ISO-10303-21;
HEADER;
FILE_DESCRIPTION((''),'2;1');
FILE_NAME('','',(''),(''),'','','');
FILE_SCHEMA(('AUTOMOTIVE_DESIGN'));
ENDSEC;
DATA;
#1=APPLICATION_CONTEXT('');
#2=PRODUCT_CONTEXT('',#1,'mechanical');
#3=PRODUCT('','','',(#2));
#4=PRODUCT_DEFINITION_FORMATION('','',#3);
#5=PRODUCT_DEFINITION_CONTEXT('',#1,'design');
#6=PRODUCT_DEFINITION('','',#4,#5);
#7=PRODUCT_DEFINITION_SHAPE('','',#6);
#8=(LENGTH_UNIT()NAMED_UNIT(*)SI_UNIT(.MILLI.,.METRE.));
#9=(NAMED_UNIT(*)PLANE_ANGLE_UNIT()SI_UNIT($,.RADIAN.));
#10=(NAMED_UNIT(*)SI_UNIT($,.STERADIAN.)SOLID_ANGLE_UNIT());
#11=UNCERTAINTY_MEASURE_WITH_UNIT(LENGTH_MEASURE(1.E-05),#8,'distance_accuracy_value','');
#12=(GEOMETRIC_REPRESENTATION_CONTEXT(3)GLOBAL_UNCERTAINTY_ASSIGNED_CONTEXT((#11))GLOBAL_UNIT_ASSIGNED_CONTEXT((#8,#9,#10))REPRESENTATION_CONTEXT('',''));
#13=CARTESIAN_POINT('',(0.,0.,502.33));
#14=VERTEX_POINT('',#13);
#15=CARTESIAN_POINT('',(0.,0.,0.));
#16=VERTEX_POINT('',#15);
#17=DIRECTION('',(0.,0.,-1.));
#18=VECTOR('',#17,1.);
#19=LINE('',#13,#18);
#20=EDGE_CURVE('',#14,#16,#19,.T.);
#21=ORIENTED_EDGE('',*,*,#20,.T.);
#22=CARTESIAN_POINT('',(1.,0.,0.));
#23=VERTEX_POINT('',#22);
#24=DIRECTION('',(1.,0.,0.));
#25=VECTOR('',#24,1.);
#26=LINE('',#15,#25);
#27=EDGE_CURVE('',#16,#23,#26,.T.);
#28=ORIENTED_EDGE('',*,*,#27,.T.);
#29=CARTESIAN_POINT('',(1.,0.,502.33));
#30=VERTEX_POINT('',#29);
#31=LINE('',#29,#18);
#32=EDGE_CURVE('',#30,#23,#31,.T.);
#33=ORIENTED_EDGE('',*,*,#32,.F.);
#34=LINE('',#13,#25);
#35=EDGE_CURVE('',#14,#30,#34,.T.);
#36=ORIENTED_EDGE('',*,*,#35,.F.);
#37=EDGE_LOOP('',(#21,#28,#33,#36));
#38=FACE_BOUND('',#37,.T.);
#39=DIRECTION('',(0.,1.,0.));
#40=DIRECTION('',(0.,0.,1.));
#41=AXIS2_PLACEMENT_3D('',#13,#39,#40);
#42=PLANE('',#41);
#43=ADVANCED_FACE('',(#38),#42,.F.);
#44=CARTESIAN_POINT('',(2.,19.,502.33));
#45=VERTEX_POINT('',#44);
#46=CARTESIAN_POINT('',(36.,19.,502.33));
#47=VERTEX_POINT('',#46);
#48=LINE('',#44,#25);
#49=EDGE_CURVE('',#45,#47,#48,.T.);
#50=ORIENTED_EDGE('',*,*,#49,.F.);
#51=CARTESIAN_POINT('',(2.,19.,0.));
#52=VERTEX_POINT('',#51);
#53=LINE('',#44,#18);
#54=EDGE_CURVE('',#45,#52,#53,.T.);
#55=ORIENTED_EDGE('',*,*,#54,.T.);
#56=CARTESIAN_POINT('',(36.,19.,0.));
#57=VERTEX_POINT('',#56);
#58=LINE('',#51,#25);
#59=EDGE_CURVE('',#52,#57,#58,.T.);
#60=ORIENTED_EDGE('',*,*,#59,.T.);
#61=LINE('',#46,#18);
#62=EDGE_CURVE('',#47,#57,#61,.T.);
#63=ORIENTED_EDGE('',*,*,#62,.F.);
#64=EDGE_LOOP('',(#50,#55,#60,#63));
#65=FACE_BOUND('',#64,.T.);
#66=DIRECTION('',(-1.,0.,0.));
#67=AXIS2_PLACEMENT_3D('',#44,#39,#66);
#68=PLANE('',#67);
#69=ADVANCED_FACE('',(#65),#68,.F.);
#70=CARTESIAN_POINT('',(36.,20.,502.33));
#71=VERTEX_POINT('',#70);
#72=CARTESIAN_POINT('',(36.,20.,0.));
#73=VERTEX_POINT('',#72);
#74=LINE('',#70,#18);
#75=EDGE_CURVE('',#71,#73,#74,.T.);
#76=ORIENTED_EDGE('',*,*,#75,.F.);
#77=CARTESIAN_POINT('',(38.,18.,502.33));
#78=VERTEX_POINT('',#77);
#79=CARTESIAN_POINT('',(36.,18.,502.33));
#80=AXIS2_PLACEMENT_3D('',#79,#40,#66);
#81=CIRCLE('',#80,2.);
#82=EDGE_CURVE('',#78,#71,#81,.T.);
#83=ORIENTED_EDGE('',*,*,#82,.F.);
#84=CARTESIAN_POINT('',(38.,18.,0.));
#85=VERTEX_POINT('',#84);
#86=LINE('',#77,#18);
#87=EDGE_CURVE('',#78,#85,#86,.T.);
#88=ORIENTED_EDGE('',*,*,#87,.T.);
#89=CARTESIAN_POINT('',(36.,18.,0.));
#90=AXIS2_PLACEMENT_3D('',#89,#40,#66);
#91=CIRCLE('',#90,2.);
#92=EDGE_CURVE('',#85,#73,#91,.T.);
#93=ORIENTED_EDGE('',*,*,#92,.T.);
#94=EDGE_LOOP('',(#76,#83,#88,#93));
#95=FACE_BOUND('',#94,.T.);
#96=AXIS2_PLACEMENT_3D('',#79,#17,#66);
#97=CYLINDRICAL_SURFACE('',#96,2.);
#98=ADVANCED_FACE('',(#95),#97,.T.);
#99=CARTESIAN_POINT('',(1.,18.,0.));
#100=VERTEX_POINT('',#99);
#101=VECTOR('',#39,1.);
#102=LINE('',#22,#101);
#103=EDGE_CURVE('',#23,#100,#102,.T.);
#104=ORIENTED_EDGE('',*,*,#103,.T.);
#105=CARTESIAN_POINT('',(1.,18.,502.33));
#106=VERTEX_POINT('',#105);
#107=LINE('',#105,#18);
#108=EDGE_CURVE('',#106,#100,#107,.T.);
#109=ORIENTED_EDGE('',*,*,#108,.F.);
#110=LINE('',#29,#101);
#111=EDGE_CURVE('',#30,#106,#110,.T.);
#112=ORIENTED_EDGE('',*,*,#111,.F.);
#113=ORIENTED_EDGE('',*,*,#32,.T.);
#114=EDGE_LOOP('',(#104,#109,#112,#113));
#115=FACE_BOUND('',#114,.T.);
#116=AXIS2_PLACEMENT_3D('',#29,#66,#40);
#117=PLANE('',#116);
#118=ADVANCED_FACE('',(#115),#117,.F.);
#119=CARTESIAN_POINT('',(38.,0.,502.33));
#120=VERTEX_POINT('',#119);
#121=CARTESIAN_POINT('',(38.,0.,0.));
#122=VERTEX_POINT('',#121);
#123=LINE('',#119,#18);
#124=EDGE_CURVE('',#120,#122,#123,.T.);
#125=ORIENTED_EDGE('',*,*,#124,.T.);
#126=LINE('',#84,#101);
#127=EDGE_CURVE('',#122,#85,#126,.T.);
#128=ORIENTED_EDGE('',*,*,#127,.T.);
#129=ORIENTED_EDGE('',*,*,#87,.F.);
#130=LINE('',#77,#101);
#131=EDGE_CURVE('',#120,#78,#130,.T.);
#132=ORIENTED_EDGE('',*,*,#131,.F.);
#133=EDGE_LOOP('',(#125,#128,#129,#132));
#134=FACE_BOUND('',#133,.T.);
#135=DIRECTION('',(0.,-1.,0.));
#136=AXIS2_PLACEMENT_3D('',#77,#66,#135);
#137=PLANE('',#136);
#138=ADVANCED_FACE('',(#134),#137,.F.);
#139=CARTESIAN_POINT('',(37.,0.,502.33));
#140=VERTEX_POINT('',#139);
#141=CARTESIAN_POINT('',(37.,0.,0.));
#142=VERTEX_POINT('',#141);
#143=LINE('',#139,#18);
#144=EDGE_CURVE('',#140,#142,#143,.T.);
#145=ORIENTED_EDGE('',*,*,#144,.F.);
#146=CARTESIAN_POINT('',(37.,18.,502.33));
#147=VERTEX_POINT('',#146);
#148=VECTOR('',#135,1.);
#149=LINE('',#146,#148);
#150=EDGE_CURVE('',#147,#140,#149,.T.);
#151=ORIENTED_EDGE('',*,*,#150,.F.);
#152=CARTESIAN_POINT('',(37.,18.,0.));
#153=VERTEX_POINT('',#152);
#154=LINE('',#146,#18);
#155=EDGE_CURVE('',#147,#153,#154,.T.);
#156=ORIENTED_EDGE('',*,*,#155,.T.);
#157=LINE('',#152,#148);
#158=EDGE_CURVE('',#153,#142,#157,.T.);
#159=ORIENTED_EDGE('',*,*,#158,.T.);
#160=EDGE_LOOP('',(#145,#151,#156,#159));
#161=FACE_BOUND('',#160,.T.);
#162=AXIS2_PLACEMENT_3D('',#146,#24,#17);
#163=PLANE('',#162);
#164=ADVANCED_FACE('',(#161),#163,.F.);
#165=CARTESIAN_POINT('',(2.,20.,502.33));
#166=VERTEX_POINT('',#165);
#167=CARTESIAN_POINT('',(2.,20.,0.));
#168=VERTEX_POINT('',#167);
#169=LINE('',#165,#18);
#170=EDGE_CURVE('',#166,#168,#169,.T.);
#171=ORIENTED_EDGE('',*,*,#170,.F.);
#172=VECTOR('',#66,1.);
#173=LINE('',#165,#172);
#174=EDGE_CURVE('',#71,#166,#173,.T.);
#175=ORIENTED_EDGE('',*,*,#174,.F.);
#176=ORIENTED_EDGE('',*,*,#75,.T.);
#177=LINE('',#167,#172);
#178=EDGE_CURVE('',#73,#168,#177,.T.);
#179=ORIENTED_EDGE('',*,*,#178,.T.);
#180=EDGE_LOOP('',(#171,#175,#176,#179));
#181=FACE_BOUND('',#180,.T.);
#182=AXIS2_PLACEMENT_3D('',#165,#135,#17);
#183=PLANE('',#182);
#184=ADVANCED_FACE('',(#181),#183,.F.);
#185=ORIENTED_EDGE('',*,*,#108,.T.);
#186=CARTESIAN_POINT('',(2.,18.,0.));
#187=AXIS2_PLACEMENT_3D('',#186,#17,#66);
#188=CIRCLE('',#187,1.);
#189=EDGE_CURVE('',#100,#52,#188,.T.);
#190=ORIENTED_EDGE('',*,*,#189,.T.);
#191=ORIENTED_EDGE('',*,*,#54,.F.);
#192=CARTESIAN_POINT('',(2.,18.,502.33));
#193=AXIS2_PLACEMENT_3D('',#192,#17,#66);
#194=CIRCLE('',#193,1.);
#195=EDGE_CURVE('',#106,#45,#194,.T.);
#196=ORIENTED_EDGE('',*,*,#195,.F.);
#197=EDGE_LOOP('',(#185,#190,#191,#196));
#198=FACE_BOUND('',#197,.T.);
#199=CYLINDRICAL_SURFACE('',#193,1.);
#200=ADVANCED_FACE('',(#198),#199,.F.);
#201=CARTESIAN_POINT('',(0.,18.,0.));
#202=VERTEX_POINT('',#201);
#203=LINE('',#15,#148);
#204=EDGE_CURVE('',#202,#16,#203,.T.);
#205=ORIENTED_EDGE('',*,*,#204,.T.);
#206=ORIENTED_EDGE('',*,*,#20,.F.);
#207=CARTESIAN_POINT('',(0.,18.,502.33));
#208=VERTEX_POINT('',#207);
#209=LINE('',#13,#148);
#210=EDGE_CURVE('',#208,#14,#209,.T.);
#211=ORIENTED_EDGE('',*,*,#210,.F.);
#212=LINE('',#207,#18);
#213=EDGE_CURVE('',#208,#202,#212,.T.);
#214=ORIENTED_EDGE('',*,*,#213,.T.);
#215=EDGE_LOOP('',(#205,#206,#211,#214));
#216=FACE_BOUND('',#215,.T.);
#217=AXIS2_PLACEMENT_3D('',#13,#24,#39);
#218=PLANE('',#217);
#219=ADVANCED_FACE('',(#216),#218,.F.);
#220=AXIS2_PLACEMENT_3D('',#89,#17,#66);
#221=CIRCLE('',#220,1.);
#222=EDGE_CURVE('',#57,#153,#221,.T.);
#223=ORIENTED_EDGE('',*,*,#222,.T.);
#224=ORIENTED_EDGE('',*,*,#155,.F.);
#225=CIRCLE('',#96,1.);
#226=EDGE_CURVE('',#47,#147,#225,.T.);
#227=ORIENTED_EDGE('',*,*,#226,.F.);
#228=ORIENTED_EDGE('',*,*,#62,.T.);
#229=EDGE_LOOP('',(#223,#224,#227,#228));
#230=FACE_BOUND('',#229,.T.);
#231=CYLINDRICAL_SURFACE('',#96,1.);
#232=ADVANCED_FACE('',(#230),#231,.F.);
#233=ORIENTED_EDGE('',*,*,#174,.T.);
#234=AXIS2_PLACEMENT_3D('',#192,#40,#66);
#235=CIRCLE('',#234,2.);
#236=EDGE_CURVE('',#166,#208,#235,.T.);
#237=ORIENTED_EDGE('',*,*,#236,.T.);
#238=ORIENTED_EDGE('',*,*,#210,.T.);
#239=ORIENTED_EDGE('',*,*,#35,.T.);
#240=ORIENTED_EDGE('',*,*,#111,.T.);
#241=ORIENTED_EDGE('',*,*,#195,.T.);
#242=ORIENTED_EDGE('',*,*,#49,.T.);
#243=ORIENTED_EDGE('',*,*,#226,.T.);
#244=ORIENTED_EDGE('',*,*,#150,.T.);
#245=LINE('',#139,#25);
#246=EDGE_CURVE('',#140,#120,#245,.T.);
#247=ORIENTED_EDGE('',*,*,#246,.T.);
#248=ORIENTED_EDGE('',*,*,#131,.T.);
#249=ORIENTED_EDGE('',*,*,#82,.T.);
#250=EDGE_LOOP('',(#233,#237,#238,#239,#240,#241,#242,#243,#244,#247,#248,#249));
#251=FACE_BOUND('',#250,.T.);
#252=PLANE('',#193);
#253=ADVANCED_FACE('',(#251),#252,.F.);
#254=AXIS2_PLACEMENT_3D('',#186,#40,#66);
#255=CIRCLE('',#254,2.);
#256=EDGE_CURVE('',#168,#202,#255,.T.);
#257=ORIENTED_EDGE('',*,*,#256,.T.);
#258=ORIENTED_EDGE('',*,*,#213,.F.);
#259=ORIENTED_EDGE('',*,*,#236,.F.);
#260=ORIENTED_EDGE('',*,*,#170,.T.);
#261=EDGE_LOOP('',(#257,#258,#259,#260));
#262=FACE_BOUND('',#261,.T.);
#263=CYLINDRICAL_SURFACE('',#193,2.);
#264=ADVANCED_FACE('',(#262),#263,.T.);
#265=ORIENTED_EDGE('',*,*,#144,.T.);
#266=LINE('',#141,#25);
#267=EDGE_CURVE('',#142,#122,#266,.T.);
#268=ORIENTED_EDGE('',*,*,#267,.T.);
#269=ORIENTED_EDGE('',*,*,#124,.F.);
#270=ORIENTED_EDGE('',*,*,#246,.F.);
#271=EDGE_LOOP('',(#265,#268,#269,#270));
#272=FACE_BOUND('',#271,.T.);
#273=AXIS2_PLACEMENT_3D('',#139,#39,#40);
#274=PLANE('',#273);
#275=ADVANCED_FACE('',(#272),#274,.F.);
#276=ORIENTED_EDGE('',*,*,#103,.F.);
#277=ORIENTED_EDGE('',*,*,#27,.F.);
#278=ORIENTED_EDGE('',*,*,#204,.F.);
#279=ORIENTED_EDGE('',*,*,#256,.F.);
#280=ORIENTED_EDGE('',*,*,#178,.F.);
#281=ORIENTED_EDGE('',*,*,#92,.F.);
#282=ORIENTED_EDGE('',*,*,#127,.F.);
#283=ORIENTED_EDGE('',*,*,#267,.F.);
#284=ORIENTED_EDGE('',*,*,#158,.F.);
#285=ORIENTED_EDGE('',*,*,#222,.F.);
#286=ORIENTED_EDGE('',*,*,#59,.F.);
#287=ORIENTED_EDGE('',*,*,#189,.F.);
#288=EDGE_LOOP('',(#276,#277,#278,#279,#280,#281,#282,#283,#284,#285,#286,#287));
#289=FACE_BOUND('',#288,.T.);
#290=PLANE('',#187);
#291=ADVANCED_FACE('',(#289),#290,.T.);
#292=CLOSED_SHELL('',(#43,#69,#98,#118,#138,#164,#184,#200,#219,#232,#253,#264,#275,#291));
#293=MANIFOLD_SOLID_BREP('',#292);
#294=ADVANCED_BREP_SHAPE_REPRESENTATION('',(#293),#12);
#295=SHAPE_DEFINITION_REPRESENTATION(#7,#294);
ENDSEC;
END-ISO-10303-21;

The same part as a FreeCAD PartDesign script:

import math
import FreeCAD as App
import Part
import Sketcher
Q = App.Units.Quantity

doc = App.newDocument("Part")
body = doc.addObject("PartDesign::Body", "Body")

sketch1 = doc.addObject("Sketcher::SketchObject", "Sketch")
body.addObject(sketch1)
sketch1.AttachmentSupport = (doc.XY_Plane, [""])
sketch1.MapMode = "FlatFace"
sketch1.addGeometry([
    Part.LineSegment(App.Vector(0, 18, 0), App.Vector(0, 0, 0)),
    Part.LineSegment(App.Vector(0, 0, 0), App.Vector(1, 0, 0)),
    Part.LineSegment(App.Vector(1, 0, 0), App.Vector(1, 18, 0)),
    Part.ArcOfCircle(Part.Circle(App.Vector(2, 18, 0), App.Vector(0, 0, 1), 1), math.radians(90), math.radians(180)),
    Part.LineSegment(App.Vector(2, 19, 0), App.Vector(36, 19, 0)),
    Part.ArcOfCircle(Part.Circle(App.Vector(36, 18, 0), App.Vector(0, 0, 1), 1), math.radians(0), math.radians(90)),
    Part.LineSegment(App.Vector(37, 18, 0), App.Vector(37, 0, 0)),
    Part.LineSegment(App.Vector(37, 0, 0), App.Vector(38, 0, 0)),
    Part.LineSegment(App.Vector(38, 0, 0), App.Vector(38, 18, 0)),
    Part.ArcOfCircle(Part.Circle(App.Vector(36, 18, 0), App.Vector(0, 0, 1), 2), math.radians(0), math.radians(90)),
    Part.LineSegment(App.Vector(36, 20, 0), App.Vector(2, 20, 0)),
    Part.ArcOfCircle(Part.Circle(App.Vector(2, 18, 0), App.Vector(0, 0, 1), 2), math.radians(90), math.radians(180)),
], False)
sketch1.addConstraint([
    Sketcher.Constraint("Coincident", 0, 2, 1, 1),
    Sketcher.Constraint("Coincident", 1, 2, 2, 1),
    Sketcher.Constraint("Tangent", 2, 2, 3, 2),
    Sketcher.Constraint("Tangent", 3, 1, 4, 1),
    Sketcher.Constraint("Tangent", 4, 2, 5, 2),
    Sketcher.Constraint("Tangent", 5, 1, 6, 1),
    Sketcher.Constraint("Coincident", 6, 2, 7, 1),
    Sketcher.Constraint("Coincident", 7, 2, 8, 1),
    Sketcher.Constraint("Tangent", 8, 2, 9, 1),
    Sketcher.Constraint("Tangent", 9, 2, 10, 1),
    Sketcher.Constraint("Tangent", 10, 2, 11, 1),
    Sketcher.Constraint("Tangent", 11, 2, 0, 1),
    Sketcher.Constraint("Vertical", 0),
    Sketcher.Constraint("Horizontal", 1),
    Sketcher.Constraint("Vertical", 2),
    Sketcher.Constraint("Horizontal", 4),
    Sketcher.Constraint("Vertical", 6),
    Sketcher.Constraint("Horizontal", 7),
    Sketcher.Constraint("Vertical", 8),
    Sketcher.Constraint("Horizontal", 10),
    Sketcher.Constraint("Coincident", 0, 2, -1, 1),
    Sketcher.Constraint("Coincident", 9, 3, 5, 3),
    Sketcher.Constraint("Coincident", 11, 3, 3, 3),
    Sketcher.Constraint("Equal", 3, 5),
    Sketcher.Constraint("PointOnObject", 6, 2, -1),
    Sketcher.Constraint("Radius", 3, Q("1 mm")),
    Sketcher.Constraint("Radius", 9, Q("2 mm")),
    Sketcher.Constraint("DistanceX", 4, 1, 4, 2, Q("34 mm")),
    Sketcher.Constraint("DistanceY", 0, 2, 0, 1, Q("18 mm")),
])
pad1 = doc.addObject("PartDesign::Pad", "Pad")
body.addObject(pad1)
pad1.Profile = sketch1
pad1.Length = 502.33

doc.recompute()
